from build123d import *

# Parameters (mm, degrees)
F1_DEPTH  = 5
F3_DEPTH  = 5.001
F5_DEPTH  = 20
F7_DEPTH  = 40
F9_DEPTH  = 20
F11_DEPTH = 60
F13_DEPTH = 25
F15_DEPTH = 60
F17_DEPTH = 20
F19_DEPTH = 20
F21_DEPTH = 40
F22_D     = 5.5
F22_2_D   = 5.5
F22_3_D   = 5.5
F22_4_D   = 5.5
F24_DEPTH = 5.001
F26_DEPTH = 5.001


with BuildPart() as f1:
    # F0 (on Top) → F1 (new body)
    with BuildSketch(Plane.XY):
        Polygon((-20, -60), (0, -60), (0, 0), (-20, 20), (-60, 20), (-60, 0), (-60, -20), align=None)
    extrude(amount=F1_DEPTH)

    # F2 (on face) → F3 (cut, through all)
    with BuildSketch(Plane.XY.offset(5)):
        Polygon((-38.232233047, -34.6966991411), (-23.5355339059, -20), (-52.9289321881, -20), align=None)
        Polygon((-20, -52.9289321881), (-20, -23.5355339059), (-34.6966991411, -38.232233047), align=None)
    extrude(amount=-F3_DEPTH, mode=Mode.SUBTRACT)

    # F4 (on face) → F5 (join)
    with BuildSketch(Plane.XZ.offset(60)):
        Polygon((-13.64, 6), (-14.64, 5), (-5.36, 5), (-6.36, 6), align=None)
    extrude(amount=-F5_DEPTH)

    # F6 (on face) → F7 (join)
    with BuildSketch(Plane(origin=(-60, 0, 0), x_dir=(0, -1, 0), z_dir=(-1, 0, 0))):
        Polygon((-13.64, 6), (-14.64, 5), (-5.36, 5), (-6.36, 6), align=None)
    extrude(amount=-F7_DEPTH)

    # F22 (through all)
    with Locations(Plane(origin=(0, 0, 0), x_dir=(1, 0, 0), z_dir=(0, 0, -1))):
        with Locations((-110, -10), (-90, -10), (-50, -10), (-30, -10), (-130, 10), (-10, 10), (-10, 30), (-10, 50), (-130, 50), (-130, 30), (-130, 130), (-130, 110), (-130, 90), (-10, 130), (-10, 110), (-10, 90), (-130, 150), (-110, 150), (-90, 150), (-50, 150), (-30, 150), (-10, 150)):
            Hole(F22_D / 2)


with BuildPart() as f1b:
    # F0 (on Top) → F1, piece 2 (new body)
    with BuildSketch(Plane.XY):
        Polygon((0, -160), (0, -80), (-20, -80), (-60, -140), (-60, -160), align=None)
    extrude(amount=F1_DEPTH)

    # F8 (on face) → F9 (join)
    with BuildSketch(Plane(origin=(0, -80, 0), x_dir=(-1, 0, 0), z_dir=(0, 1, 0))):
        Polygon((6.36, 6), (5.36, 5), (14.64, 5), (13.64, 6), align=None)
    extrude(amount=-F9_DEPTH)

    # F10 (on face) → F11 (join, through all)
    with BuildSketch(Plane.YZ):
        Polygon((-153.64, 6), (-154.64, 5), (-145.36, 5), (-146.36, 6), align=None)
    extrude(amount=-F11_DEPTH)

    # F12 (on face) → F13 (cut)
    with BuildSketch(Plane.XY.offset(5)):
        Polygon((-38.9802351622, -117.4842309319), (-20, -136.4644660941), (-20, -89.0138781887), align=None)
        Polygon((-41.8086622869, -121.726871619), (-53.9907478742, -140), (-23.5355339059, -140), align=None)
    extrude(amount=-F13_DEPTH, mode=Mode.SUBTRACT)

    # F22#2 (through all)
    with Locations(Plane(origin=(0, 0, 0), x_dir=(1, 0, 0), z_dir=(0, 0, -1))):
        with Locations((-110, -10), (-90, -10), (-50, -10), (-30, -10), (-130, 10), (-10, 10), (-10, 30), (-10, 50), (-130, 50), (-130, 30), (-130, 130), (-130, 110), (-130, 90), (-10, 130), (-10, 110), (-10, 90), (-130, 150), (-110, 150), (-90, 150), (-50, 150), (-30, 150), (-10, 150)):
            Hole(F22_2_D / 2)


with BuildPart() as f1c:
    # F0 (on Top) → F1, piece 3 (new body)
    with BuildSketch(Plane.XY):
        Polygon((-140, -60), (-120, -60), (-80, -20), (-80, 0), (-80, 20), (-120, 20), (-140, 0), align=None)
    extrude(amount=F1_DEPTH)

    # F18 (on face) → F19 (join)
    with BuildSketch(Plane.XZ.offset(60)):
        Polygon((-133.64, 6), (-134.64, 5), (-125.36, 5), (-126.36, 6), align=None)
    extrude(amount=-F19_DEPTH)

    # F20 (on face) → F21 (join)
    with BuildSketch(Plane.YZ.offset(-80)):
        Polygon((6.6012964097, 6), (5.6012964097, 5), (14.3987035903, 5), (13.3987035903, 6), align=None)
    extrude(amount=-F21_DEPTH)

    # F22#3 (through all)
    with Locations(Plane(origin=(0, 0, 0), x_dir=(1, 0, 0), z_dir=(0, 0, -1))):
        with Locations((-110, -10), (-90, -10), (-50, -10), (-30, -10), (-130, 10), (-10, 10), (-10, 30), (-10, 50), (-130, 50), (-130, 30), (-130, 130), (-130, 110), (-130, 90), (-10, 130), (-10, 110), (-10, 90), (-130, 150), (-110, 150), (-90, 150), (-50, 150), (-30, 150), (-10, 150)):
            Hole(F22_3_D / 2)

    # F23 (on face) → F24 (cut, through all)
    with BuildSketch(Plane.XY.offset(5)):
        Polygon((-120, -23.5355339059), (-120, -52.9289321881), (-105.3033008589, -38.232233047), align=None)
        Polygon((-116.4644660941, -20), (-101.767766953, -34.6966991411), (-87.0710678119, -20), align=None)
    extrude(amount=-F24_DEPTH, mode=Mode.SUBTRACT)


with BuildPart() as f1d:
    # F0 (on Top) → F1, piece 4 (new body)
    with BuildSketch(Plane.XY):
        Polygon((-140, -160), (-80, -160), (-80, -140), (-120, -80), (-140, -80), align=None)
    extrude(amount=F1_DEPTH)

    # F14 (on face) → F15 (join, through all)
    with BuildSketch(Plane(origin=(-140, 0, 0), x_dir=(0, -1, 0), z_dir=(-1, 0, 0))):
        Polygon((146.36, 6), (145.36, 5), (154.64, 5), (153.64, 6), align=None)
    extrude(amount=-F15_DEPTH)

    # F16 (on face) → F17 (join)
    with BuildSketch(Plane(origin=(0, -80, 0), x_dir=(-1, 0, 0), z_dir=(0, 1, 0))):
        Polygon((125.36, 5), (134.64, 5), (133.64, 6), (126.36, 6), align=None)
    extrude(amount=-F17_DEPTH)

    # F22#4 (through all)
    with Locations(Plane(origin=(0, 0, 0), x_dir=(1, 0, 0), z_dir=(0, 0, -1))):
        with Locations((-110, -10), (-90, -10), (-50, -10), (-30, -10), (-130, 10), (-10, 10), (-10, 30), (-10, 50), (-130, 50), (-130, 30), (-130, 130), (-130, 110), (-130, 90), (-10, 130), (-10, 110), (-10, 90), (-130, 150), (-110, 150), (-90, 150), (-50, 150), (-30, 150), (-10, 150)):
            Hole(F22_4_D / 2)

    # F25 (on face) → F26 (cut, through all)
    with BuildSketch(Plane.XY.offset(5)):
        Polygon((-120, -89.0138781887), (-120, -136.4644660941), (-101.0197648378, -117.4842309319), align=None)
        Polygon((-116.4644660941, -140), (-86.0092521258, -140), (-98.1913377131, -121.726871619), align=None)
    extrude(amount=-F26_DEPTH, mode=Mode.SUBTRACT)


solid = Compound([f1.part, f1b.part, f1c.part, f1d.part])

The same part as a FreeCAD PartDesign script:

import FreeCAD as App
import Part
import Sketcher

V = App.Vector
Q = App.Units.Quantity


def add_polygon(sketch, points):
    """Adds a closed chain of lines whose ends are joined by coincident constraints."""
    first, n = sketch.GeometryCount, len(points)
    for a, b in zip(points, points[1:] + points[:1]):
        sketch.addGeometry(Part.LineSegment(App.Vector(*a, 0), App.Vector(*b, 0)), False)
    for i in range(n):
        sketch.addConstraint(Sketcher.Constraint("Coincident", first + i, 2, first + (i + 1) % n, 1))

doc = App.newDocument("Part")
body = doc.addObject("PartDesign::Body", "Body")

# Sketch on XY plane
sketch1 = body.newObject("Sketcher::SketchObject", "Sketch")
sketch1.AttachmentSupport = (doc.getObject("XY_Plane"), [""])
sketch1.MapMode = "FlatFace"
add_polygon(sketch1, [(-20, -60), (0, -60), (0, 0), (-20, 20), (-60, 20), (-60, -20)])  # lines 0-5
sketch1.addConstraint([
    Sketcher.Constraint("Horizontal", 0),
    Sketcher.Constraint("Vertical", 1),
    Sketcher.Constraint("Horizontal", 3),
    Sketcher.Constraint("Vertical", 4),
    Sketcher.Constraint("Coincident", 1, 2, -1, 1),
    Sketcher.Constraint("Parallel", 2, 5),
    Sketcher.Constraint("Vertical", 2, 2, 5, 2),
    Sketcher.Constraint("Equal", 3, 4),
    Sketcher.Constraint("DistanceX", 0, 1, 0, 2, Q("20 mm")),
    Sketcher.Constraint("DistanceX", 3, 2, 3, 1, Q("40 mm")),
    Sketcher.Constraint("DistanceY", 1, 1, 1, 2, Q("60 mm")),
])
pad1 = body.newObject("PartDesign::Pad", "Pad")
pad1.Profile = sketch1
pad1.Length = 5

# Sketch on XY plane
sketch2 = body.newObject("Sketcher::SketchObject", "Sketch001")
sketch2.AttachmentSupport = (doc.getObject("XY_Plane"), [""])
sketch2.MapMode = "FlatFace"
sketch2.AttachmentOffset = App.Placement(V(0, 0, 5), App.Rotation())
add_polygon(sketch2, [(-38, -35), (-24, -20), (-53, -20)])  # lines 0-2
add_polygon(sketch2, [(-20, -53), (-20, -24), (-35, -38)])  # lines 3-5
sketch2.addConstraint([
    Sketcher.Constraint("Horizontal", 1),
    Sketcher.Constraint("Vertical", 3),
    Sketcher.Constraint("Perpendicular", 0, 2),
    Sketcher.Constraint("Perpendicular", 2, 4),
    Sketcher.Constraint("Perpendicular", 4, 5),
    Sketcher.Constraint("Equal", 1, 3),
    Sketcher.Constraint("Equal", 0, 2),
    Sketcher.Constraint("DistanceY", 0, 2, -1, 1, Q("20 mm")),
    Sketcher.Constraint("DistanceX", 3, 2, -1, 1, Q("20 mm")),
    Sketcher.Constraint("DistanceX", 1, 2, 1, 1, Q("29.393398 mm")),
    Sketcher.Constraint("DistanceX", 0, 2, -1, 1, Q("23.535534 mm")),
    Sketcher.Constraint("DistanceY", 3, 2, -1, 1, Q("23.535534 mm")),
])
pocket1 = body.newObject("PartDesign::Pocket", "Pocket")
pocket1.Profile = sketch2
pocket1.Type = "ThroughAll"

# Sketch on XZ plane
sketch3 = body.newObject("Sketcher::SketchObject", "Sketch002")
sketch3.AttachmentSupport = (doc.getObject("XZ_Plane"), [""])
sketch3.MapMode = "FlatFace"
sketch3.AttachmentOffset = App.Placement(V(0, 0, 60), App.Rotation())
add_polygon(sketch3, [(-13.6, 6), (-14.6, 5), (-5.4, 5), (-6.4, 6)])  # lines 0-3
sketch3.addConstraint([
    Sketcher.Constraint("Horizontal", 1),
    Sketcher.Constraint("Horizontal", 3),
    Sketcher.Constraint("Perpendicular", 0, 2),
    Sketcher.Constraint("Equal", 0, 2),
    Sketcher.Constraint("DistanceY", -1, 1, 0, 2, Q("5 mm")),
    Sketcher.Constraint("DistanceY", -1, 1, 2, 2, Q("6 mm")),
    Sketcher.Constraint("DistanceX", 1, 1, 1, 2, Q("9.28 mm")),
    Sketcher.Constraint("DistanceX", 0, 2, -1, 1, Q("14.64 mm")),
])
pad2 = body.newObject("PartDesign::Pad", "Pad001")
pad2.Profile = sketch3
pad2.Length = 20
pad2.Reversed = True

# Sketch on YZ plane
sketch4 = body.newObject("Sketcher::SketchObject", "Sketch003")
sketch4.AttachmentSupport = (doc.getObject("YZ_Plane"), [""])
sketch4.MapMode = "FlatFace"
sketch4.AttachmentOffset = App.Placement(V(0, 0, -60), App.Rotation())
add_polygon(sketch4, [(13.6, 6), (14.6, 5), (5.4, 5), (6.4, 6)])  # lines 0-3
sketch4.addConstraint([
    Sketcher.Constraint("Horizontal", 1),
    Sketcher.Constraint("Horizontal", 3),
    Sketcher.Constraint("Perpendicular", 0, 2),
    Sketcher.Constraint("Equal", 0, 2),
    Sketcher.Constraint("DistanceY", -1, 1, 0, 2, Q("5 mm")),
    Sketcher.Constraint("DistanceY", -1, 1, 2, 2, Q("6 mm")),
    Sketcher.Constraint("DistanceX", 1, 2, 1, 1, Q("9.28 mm")),
    Sketcher.Constraint("DistanceX", -1, 1, 0, 2, Q("14.64 mm")),
])
pad3 = body.newObject("PartDesign::Pad", "Pad002")
pad3.Profile = sketch4
pad3.Length = 40

# Sketch on XY plane
sketch5 = body.newObject("Sketcher::SketchObject", "Sketch004")
sketch5.AttachmentSupport = (doc.getObject("XY_Plane"), [""])
sketch5.MapMode = "FlatFace"
sketch5.addGeometry([
    Part.Circle(V(-110, 10, 0), V(0, 0, 1), 2.8),  # 0
    Part.Circle(V(-90, 10, 0), V(0, 0, 1), 2.8),  # 1
    Part.Circle(V(-50, 10, 0), V(0, 0, 1), 2.8),  # 2
    Part.Circle(V(-30, 10, 0), V(0, 0, 1), 2.8),  # 3
    Part.Circle(V(-130, -10, 0), V(0, 0, 1), 2.8),  # 4
    Part.Circle(V(-10, -10, 0), V(0, 0, 1), 2.8),  # 5
    Part.Circle(V(-10, -30, 0), V(0, 0, 1), 2.8),  # 6
    Part.Circle(V(-10, -50, 0), V(0, 0, 1), 2.8),  # 7
    Part.Circle(V(-130, -50, 0), V(0, 0, 1), 2.8),  # 8
    Part.Circle(V(-130, -30, 0), V(0, 0, 1), 2.8),  # 9
    Part.Circle(V(-130, -130, 0), V(0, 0, 1), 2.8),  # 10
    Part.Circle(V(-130, -110, 0), V(0, 0, 1), 2.8),  # 11
    Part.Circle(V(-130, -90, 0), V(0, 0, 1), 2.8),  # 12
    Part.Circle(V(-10, -130, 0), V(0, 0, 1), 2.8),  # 13
    Part.Circle(V(-10, -110, 0), V(0, 0, 1), 2.8),  # 14
    Part.Circle(V(-10, -90, 0), V(0, 0, 1), 2.8),  # 15
    Part.Circle(V(-130, -150, 0), V(0, 0, 1), 2.8),  # 16
    Part.Circle(V(-110, -150, 0), V(0, 0, 1), 2.8),  # 17
    Part.Circle(V(-90, -150, 0), V(0, 0, 1), 2.8),  # 18
    Part.Circle(V(-50, -150, 0), V(0, 0, 1), 2.8),  # 19
    Part.Circle(V(-30, -150, 0), V(0, 0, 1), 2.8),  # 20
    Part.Circle(V(-10, -150, 0), V(0, 0, 1), 2.8),  # 21
], False)
sketch5.addConstraint([
    Sketcher.Constraint("Equal", 0, 1),
    Sketcher.Constraint("Equal", 1, 2),
    Sketcher.Constraint("Equal", 2, 3),
    Sketcher.Constraint("Equal", 3, 4),
    Sketcher.Constraint("Equal", 4, 5),
    Sketcher.Constraint("Equal", 5, 6),
    Sketcher.Constraint("Equal", 6, 7),
    Sketcher.Constraint("Equal", 7, 8),
    Sketcher.Constraint("Equal", 8, 9),
    Sketcher.Constraint("Equal", 9, 10),
    Sketcher.Constraint("Equal", 10, 11),
    Sketcher.Constraint("Equal", 11, 12),
    Sketcher.Constraint("Equal", 12, 13),
    Sketcher.Constraint("Equal", 13, 14),
    Sketcher.Constraint("Equal", 14, 15),
    Sketcher.Constraint("Equal", 15, 16),
    Sketcher.Constraint("Equal", 16, 17),
    Sketcher.Constraint("Equal", 17, 18),
    Sketcher.Constraint("Equal", 18, 19),
    Sketcher.Constraint("Equal", 19, 20),
    Sketcher.Constraint("Equal", 20, 21),
    Sketcher.Constraint("Horizontal", 0, 3, 1, 3),
    Sketcher.Constraint("Horizontal", 1, 3, 2, 3),
    Sketcher.Constraint("Horizontal", 2, 3, 3, 3),
    Sketcher.Constraint("Horizontal", 4, 3, 5, 3),
    Sketcher.Constraint("Horizontal", 7, 3, 8, 3),
    Sketcher.Constraint("Horizontal", 6, 3, 9, 3),
    Sketcher.Constraint("Horizontal", 10, 3, 13, 3),
    Sketcher.Constraint("Horizontal", 11, 3, 14, 3),
    Sketcher.Constraint("Horizontal", 12, 3, 15, 3),
    Sketcher.Constraint("Horizontal", 16, 3, 17, 3),
    Sketcher.Constraint("Horizontal", 17, 3, 18, 3),
    Sketcher.Constraint("Horizontal", 18, 3, 19, 3),
    Sketcher.Constraint("Horizontal", 19, 3, 20, 3),
    Sketcher.Constraint("Horizontal", 20, 3, 21, 3),
    Sketcher.Constraint("Vertical", 5, 3, 6, 3),
    Sketcher.Constraint("Vertical", 6, 3, 7, 3),
    Sketcher.Constraint("Vertical", 4, 3, 8, 3),
    Sketcher.Constraint("Vertical", 8, 3, 9, 3),
    Sketcher.Constraint("Vertical", 9, 3, 10, 3),
    Sketcher.Constraint("Vertical", 10, 3, 11, 3),
    Sketcher.Constraint("Vertical", 11, 3, 12, 3),
    Sketcher.Constraint("Vertical", 7, 3, 13, 3),
    Sketcher.Constraint("Vertical", 13, 3, 14, 3),
    Sketcher.Constraint("Vertical", 14, 3, 15, 3),
    Sketcher.Constraint("Vertical", 12, 3, 16, 3),
    Sketcher.Constraint("Vertical", 0, 3, 17, 3),
    Sketcher.Constraint("Vertical", 1, 3, 18, 3),
    Sketcher.Constraint("Vertical", 2, 3, 19, 3),
    Sketcher.Constraint("Vertical", 3, 3, 20, 3),
    Sketcher.Constraint("Vertical", 15, 3, 21, 3),
    Sketcher.Constraint("Diameter", 0, Q("5.5 mm")),
    Sketcher.Constraint("DistanceX", 0, 3, -1, 1, Q("110 mm")),
    Sketcher.Constraint("DistanceY", -1, 1, 0, 3, Q("10 mm")),
    Sketcher.Constraint("DistanceX", 1, 3, -1, 1, Q("90 mm")),
    Sketcher.Constraint("DistanceX", 2, 3, -1, 1, Q("50 mm")),
    Sketcher.Constraint("DistanceX", 3, 3, -1, 1, Q("30 mm")),
    Sketcher.Constraint("DistanceX", 4, 3, -1, 1, Q("130 mm")),
    Sketcher.Constraint("DistanceY", 4, 3, -1, 1, Q("10 mm")),
    Sketcher.Constraint("DistanceX", 5, 3, -1, 1, Q("10 mm")),
    Sketcher.Constraint("DistanceY", 6, 3, -1, 1, Q("30 mm")),
    Sketcher.Constraint("DistanceY", 7, 3, -1, 1, Q("50 mm")),
    Sketcher.Constraint("DistanceY", 10, 3, -1, 1, Q("130 mm")),
    Sketcher.Constraint("DistanceY", 11, 3, -1, 1, Q("110 mm")),
    Sketcher.Constraint("DistanceY", 12, 3, -1, 1, Q("90 mm")),
    Sketcher.Constraint("DistanceY", 16, 3, -1, 1, Q("150 mm")),
])
doc.recompute()
hole = body.newObject("PartDesign::Hole", "Hole")
hole.Profile = sketch5
hole.ThreadType = "None"
hole.Diameter = 5.5
hole.DepthType = "ThroughAll"
hole.Reversed = True
body2 = doc.addObject("PartDesign::Body", "Body001")

# Sketch on XY plane
sketch6 = body2.newObject("Sketcher::SketchObject", "Sketch005")
sketch6.AttachmentSupport = (doc.getObject("XY_Plane001"), [""])
sketch6.MapMode = "FlatFace"
add_polygon(sketch6, [(0, -160), (0, -80), (-20, -80), (-60, -140), (-60, -160)])  # lines 0-4
sketch6.addConstraint([
    Sketcher.Constraint("Vertical", 0),
    Sketcher.Constraint("Horizontal", 1),
    Sketcher.Constraint("Vertical", 3),
    Sketcher.Constraint("Horizontal", 4),
    Sketcher.Constraint("PointOnObject", 0, 2, -2),
    Sketcher.Constraint("Equal", 1, 3),
    Sketcher.Constraint("DistanceX", 1, 2, 1, 1, Q("20 mm")),
    Sketcher.Constraint("DistanceX", 4, 1, 4, 2, Q("60 mm")),
    Sketcher.Constraint("DistanceY", 0, 1, 0, 2, Q("80 mm")),
    Sketcher.Constraint("DistanceY", 0, 2, -1, 1, Q("80 mm")),
])
pad4 = body2.newObject("PartDesign::Pad", "Pad003")
pad4.Profile = sketch6
pad4.Length = 5

# Sketch on XZ plane
sketch7 = body2.newObject("Sketcher::SketchObject", "Sketch006")
sketch7.AttachmentSupport = (doc.getObject("XZ_Plane001"), [""])
sketch7.MapMode = "FlatFace"
sketch7.AttachmentOffset = App.Placement(V(0, 0, 80), App.Rotation())
add_polygon(sketch7, [(-6.4, 6), (-5.4, 5), (-14.6, 5), (-13.6, 6)])  # lines 0-3
sketch7.addConstraint([
    Sketcher.Constraint("Horizontal", 1),
    Sketcher.Constraint("Horizontal", 3),
    Sketcher.Constraint("Perpendicular", 0, 2),
    Sketcher.Constraint("Equal", 0, 2),
    Sketcher.Constraint("DistanceY", -1, 1, 0, 2, Q("5 mm")),
    Sketcher.Constraint("DistanceY", -1, 1, 2, 2, Q("6 mm")),
    Sketcher.Constraint("DistanceX", 1, 2, 1, 1, Q("9.28 mm")),
    Sketcher.Constraint("DistanceX", 0, 2, -1, 1, Q("5.36 mm")),
])
pad5 = body2.newObject("PartDesign::Pad", "Pad004")
pad5.Profile = sketch7
pad5.Length = 20

# Sketch on YZ plane
sketch8 = body2.newObject("Sketcher::SketchObject", "Sketch007")
sketch8.AttachmentSupport = (doc.getObject("YZ_Plane001"), [""])
sketch8.MapMode = "FlatFace"
add_polygon(sketch8, [(-153.6, 6), (-154.6, 5), (-145.4, 5), (-146.4, 6)])  # lines 0-3
sketch8.addConstraint([
    Sketcher.Constraint("Horizontal", 1),
    Sketcher.Constraint("Horizontal", 3),
    Sketcher.Constraint("Perpendicular", 0, 2),
    Sketcher.Constraint("Equal", 0, 2),
    Sketcher.Constraint("DistanceY", -1, 1, 0, 2, Q("5 mm")),
    Sketcher.Constraint("DistanceY", -1, 1, 2, 2, Q("6 mm")),
    Sketcher.Constraint("DistanceX", 1, 1, 1, 2, Q("9.28 mm")),
    Sketcher.Constraint("DistanceX", 0, 2, -1, 1, Q("154.64 mm")),
])
pad6 = body2.newObject("PartDesign::Pad", "Pad005")
pad6.Profile = sketch8
pad6.Length = 60
pad6.Reversed = True

# Sketch on XY plane
sketch9 = body2.newObject("Sketcher::SketchObject", "Sketch008")
sketch9.AttachmentSupport = (doc.getObject("XY_Plane001"), [""])
sketch9.MapMode = "FlatFace"
sketch9.AttachmentOffset = App.Placement(V(0, 0, 5), App.Rotation())
add_polygon(sketch9, [(-39, -117), (-20, -136), (-20, -89)])  # lines 0-2
add_polygon(sketch9, [(-42, -122), (-54, -140), (-24, -140)])  # lines 3-5
sketch9.addConstraint([
    Sketcher.Constraint("Vertical", 1),
    Sketcher.Constraint("Horizontal", 4),
    Sketcher.Constraint("Parallel", 2, 3),
    Sketcher.Constraint("Parallel", 0, 5),
    Sketcher.Constraint("Angle", 0, Q("-45 deg")),
    Sketcher.Constraint("DistanceX", 0, 2, -1, 1, Q("20 mm")),
    Sketcher.Constraint("DistanceY", 3, 2, -1, 1, Q("140 mm")),
    Sketcher.Constraint("DistanceX", 2, 2, 4, 2, Q("15.444701 mm")),
    Sketcher.Constraint("DistanceX", 4, 1, 4, 2, Q("30.455214 mm")),
    Sketcher.Constraint("DistanceY", 1, 1, 1, 2, Q("47.450588 mm")),
    Sketcher.Constraint("DistanceY", 1, 2, -1, 1, Q("89.013878 mm")),
    Sketcher.Constraint("DistanceY", 2, 2, -1, 1, Q("117.484231 mm")),
])
pocket2 = body2.newObject("PartDesign::Pocket", "Pocket001")
pocket2.Profile = sketch9
pocket2.Length = 25

# Sketch on XY plane
sketch10 = body2.newObject("Sketcher::SketchObject", "Sketch009")
sketch10.AttachmentSupport = (doc.getObject("XY_Plane001"), [""])
sketch10.MapMode = "FlatFace"
sketch10.addGeometry([
    Part.Circle(V(-110, 10, 0), V(0, 0, 1), 2.8),  # 0
    Part.Circle(V(-90, 10, 0), V(0, 0, 1), 2.8),  # 1
    Part.Circle(V(-50, 10, 0), V(0, 0, 1), 2.8),  # 2
    Part.Circle(V(-30, 10, 0), V(0, 0, 1), 2.8),  # 3
    Part.Circle(V(-130, -10, 0), V(0, 0, 1), 2.8),  # 4
    Part.Circle(V(-10, -10, 0), V(0, 0, 1), 2.8),  # 5
    Part.Circle(V(-10, -30, 0), V(0, 0, 1), 2.8),  # 6
    Part.Circle(V(-10, -50, 0), V(0, 0, 1), 2.8),  # 7
    Part.Circle(V(-130, -50, 0), V(0, 0, 1), 2.8),  # 8
    Part.Circle(V(-130, -30, 0), V(0, 0, 1), 2.8),  # 9
    Part.Circle(V(-130, -130, 0), V(0, 0, 1), 2.8),  # 10
    Part.Circle(V(-130, -110, 0), V(0, 0, 1), 2.8),  # 11
    Part.Circle(V(-130, -90, 0), V(0, 0, 1), 2.8),  # 12
    Part.Circle(V(-10, -130, 0), V(0, 0, 1), 2.8),  # 13
    Part.Circle(V(-10, -110, 0), V(0, 0, 1), 2.8),  # 14
    Part.Circle(V(-10, -90, 0), V(0, 0, 1), 2.8),  # 15
    Part.Circle(V(-130, -150, 0), V(0, 0, 1), 2.8),  # 16
    Part.Circle(V(-110, -150, 0), V(0, 0, 1), 2.8),  # 17
    Part.Circle(V(-90, -150, 0), V(0, 0, 1), 2.8),  # 18
    Part.Circle(V(-50, -150, 0), V(0, 0, 1), 2.8),  # 19
    Part.Circle(V(-30, -150, 0), V(0, 0, 1), 2.8),  # 20
    Part.Circle(V(-10, -150, 0), V(0, 0, 1), 2.8),  # 21
], False)
sketch10.addConstraint([
    Sketcher.Constraint("Equal", 0, 1),
    Sketcher.Constraint("Equal", 1, 2),
    Sketcher.Constraint("Equal", 2, 3),
    Sketcher.Constraint("Equal", 3, 4),
    Sketcher.Constraint("Equal", 4, 5),
    Sketcher.Constraint("Equal", 5, 6),
    Sketcher.Constraint("Equal", 6, 7),
    Sketcher.Constraint("Equal", 7, 8),
    Sketcher.Constraint("Equal", 8, 9),
    Sketcher.Constraint("Equal", 9, 10),
    Sketcher.Constraint("Equal", 10, 11),
    Sketcher.Constraint("Equal", 11, 12),
    Sketcher.Constraint("Equal", 12, 13),
    Sketcher.Constraint("Equal", 13, 14),
    Sketcher.Constraint("Equal", 14, 15),
    Sketcher.Constraint("Equal", 15, 16),
    Sketcher.Constraint("Equal", 16, 17),
    Sketcher.Constraint("Equal", 17, 18),
    Sketcher.Constraint("Equal", 18, 19),
    Sketcher.Constraint("Equal", 19, 20),
    Sketcher.Constraint("Equal", 20, 21),
    Sketcher.Constraint("Horizontal", 0, 3, 1, 3),
    Sketcher.Constraint("Horizontal", 1, 3, 2, 3),
    Sketcher.Constraint("Horizontal", 2, 3, 3, 3),
    Sketcher.Constraint("Horizontal", 4, 3, 5, 3),
    Sketcher.Constraint("Horizontal", 7, 3, 8, 3),
    Sketcher.Constraint("Horizontal", 6, 3, 9, 3),
    Sketcher.Constraint("Horizontal", 10, 3, 13, 3),
    Sketcher.Constraint("Horizontal", 11, 3, 14, 3),
    Sketcher.Constraint("Horizontal", 12, 3, 15, 3),
    Sketcher.Constraint("Horizontal", 16, 3, 17, 3),
    Sketcher.Constraint("Horizontal", 17, 3, 18, 3),
    Sketcher.Constraint("Horizontal", 18, 3, 19, 3),
    Sketcher.Constraint("Horizontal", 19, 3, 20, 3),
    Sketcher.Constraint("Horizontal", 20, 3, 21, 3),
    Sketcher.Constraint("Vertical", 5, 3, 6, 3),
    Sketcher.Constraint("Vertical", 6, 3, 7, 3),
    Sketcher.Constraint("Vertical", 4, 3, 8, 3),
    Sketcher.Constraint("Vertical", 8, 3, 9, 3),
    Sketcher.Constraint("Vertical", 9, 3, 10, 3),
    Sketcher.Constraint("Vertical", 10, 3, 11, 3),
    Sketcher.Constraint("Vertical", 11, 3, 12, 3),
    Sketcher.Constraint("Vertical", 7, 3, 13, 3),
    Sketcher.Constraint("Vertical", 13, 3, 14, 3),
    Sketcher.Constraint("Vertical", 14, 3, 15, 3),
    Sketcher.Constraint("Vertical", 12, 3, 16, 3),
    Sketcher.Constraint("Vertical", 0, 3, 17, 3),
    Sketcher.Constraint("Vertical", 1, 3, 18, 3),
    Sketcher.Constraint("Vertical", 2, 3, 19, 3),
    Sketcher.Constraint("Vertical", 3, 3, 20, 3),
    Sketcher.Constraint("Vertical", 15, 3, 21, 3),
    Sketcher.Constraint("Diameter", 0, Q("5.5 mm")),
    Sketcher.Constraint("DistanceX", 0, 3, -1, 1, Q("110 mm")),
    Sketcher.Constraint("DistanceY", -1, 1, 0, 3, Q("10 mm")),
    Sketcher.Constraint("DistanceX", 1, 3, -1, 1, Q("90 mm")),
    Sketcher.Constraint("DistanceX", 2, 3, -1, 1, Q("50 mm")),
    Sketcher.Constraint("DistanceX", 3, 3, -1, 1, Q("30 mm")),
    Sketcher.Constraint("DistanceX", 4, 3, -1, 1, Q("130 mm")),
    Sketcher.Constraint("DistanceY", 4, 3, -1, 1, Q("10 mm")),
    Sketcher.Constraint("DistanceX", 5, 3, -1, 1, Q("10 mm")),
    Sketcher.Constraint("DistanceY", 6, 3, -1, 1, Q("30 mm")),
    Sketcher.Constraint("DistanceY", 7, 3, -1, 1, Q("50 mm")),
    Sketcher.Constraint("DistanceY", 10, 3, -1, 1, Q("130 mm")),
    Sketcher.Constraint("DistanceY", 11, 3, -1, 1, Q("110 mm")),
    Sketcher.Constraint("DistanceY", 12, 3, -1, 1, Q("90 mm")),
    Sketcher.Constraint("DistanceY", 16, 3, -1, 1, Q("150 mm")),
])
doc.recompute()
hole2 = body2.newObject("PartDesign::Hole", "Hole001")
hole2.Profile = sketch10
hole2.ThreadType = "None"
hole2.Diameter = 5.5
hole2.DepthType = "ThroughAll"
hole2.Reversed = True
body3 = doc.addObject("PartDesign::Body", "Body002")

# Sketch on XY plane
sketch11 = body3.newObject("Sketcher::SketchObject", "Sketch010")
sketch11.AttachmentSupport = (doc.getObject("XY_Plane002"), [""])
sketch11.MapMode = "FlatFace"
add_polygon(sketch11, [(-140, -60), (-120, -60), (-80, -20), (-80, 20), (-120, 20), (-140, 0)])  # lines 0-5
sketch11.addConstraint([
    Sketcher.Constraint("Horizontal", 0),
    Sketcher.Constraint("Vertical", 2),
    Sketcher.Constraint("Horizontal", 3),
    Sketcher.Constraint("Vertical", 5),
    Sketcher.Constraint("PointOnObject", 4, 2, -1),
    Sketcher.Constraint("Parallel", 1, 4),
    Sketcher.Constraint("Vertical", 0, 2, 3, 2),
    Sketcher.Constraint("Equal", 3, 2),
    Sketcher.Constraint("DistanceX", 0, 1, 0, 2, Q("20 mm")),
    Sketcher.Constraint("DistanceX", 3, 2, 3, 1, Q("40 mm")),
    Sketcher.Constraint("DistanceY", 5, 2, 5, 1, Q("60 mm")),
    Sketcher.Constraint("DistanceX", 0, 2, -1, 1, Q("120 mm")),
])
pad7 = body3.newObject("PartDesign::Pad", "Pad006")
pad7.Profile = sketch11
pad7.Length = 5

# Sketch on XZ plane
sketch12 = body3.newObject("Sketcher::SketchObject", "Sketch011")
sketch12.AttachmentSupport = (doc.getObject("XZ_Plane002"), [""])
sketch12.MapMode = "FlatFace"
sketch12.AttachmentOffset = App.Placement(V(0, 0, 60), App.Rotation())
add_polygon(sketch12, [(-133.6, 6), (-134.6, 5), (-125.4, 5), (-126.4, 6)])  # lines 0-3
sketch12.addConstraint([
    Sketcher.Constraint("Horizontal", 1),
    Sketcher.Constraint("Horizontal", 3),
    Sketcher.Constraint("Perpendicular", 0, 2),
    Sketcher.Constraint("Equal", 0, 2),
    Sketcher.Constraint("DistanceY", -1, 1, 0, 2, Q("5 mm")),
    Sketcher.Constraint("DistanceY", -1, 1, 2, 2, Q("6 mm")),
    Sketcher.Constraint("DistanceX", 1, 1, 1, 2, Q("9.28 mm")),
    Sketcher.Constraint("DistanceX", 0, 2, -1, 1, Q("134.64 mm")),
])
pad8 = body3.newObject("PartDesign::Pad", "Pad007")
pad8.Profile = sketch12
pad8.Length = 20
pad8.Reversed = True

# Sketch on YZ plane
sketch13 = body3.newObject("Sketcher::SketchObject", "Sketch012")
sketch13.AttachmentSupport = (doc.getObject("YZ_Plane002"), [""])
sketch13.MapMode = "FlatFace"
sketch13.AttachmentOffset = App.Placement(V(0, 0, -80), App.Rotation())
add_polygon(sketch13, [(6.6, 6), (5.6, 5), (14.4, 5), (13.4, 6)])  # lines 0-3
sketch13.addConstraint([
    Sketcher.Constraint("Horizontal", 1),
    Sketcher.Constraint("Horizontal", 3),
    Sketcher.Constraint("Perpendicular", 0, 2),
    Sketcher.Constraint("Equal", 0, 2),
    Sketcher.Constraint("DistanceY", -1, 1, 0, 2, Q("5 mm")),
    Sketcher.Constraint("DistanceY", -1, 1, 2, 2, Q("6 mm")),
    Sketcher.Constraint("DistanceX", 1, 1, 1, 2, Q("8.797407 mm")),
    Sketcher.Constraint("DistanceX", -1, 1, 0, 2, Q("5.601296 mm")),
])
pad9 = body3.newObject("PartDesign::Pad", "Pad008")
pad9.Profile = sketch13
pad9.Length = 40
pad9.Reversed = True

# Sketch on XY plane
sketch14 = body3.newObject("Sketcher::SketchObject", "Sketch013")
sketch14.AttachmentSupport = (doc.getObject("XY_Plane002"), [""])
sketch14.MapMode = "FlatFace"
sketch14.addGeometry([
    Part.Circle(V(-110, 10, 0), V(0, 0, 1), 2.8),  # 0
    Part.Circle(V(-90, 10, 0), V(0, 0, 1), 2.8),  # 1
    Part.Circle(V(-50, 10, 0), V(0, 0, 1), 2.8),  # 2
    Part.Circle(V(-30, 10, 0), V(0, 0, 1), 2.8),  # 3
    Part.Circle(V(-130, -10, 0), V(0, 0, 1), 2.8),  # 4
    Part.Circle(V(-10, -10, 0), V(0, 0, 1), 2.8),  # 5
    Part.Circle(V(-10, -30, 0), V(0, 0, 1), 2.8),  # 6
    Part.Circle(V(-10, -50, 0), V(0, 0, 1), 2.8),  # 7
    Part.Circle(V(-130, -50, 0), V(0, 0, 1), 2.8),  # 8
    Part.Circle(V(-130, -30, 0), V(0, 0, 1), 2.8),  # 9
    Part.Circle(V(-130, -130, 0), V(0, 0, 1), 2.8),  # 10
    Part.Circle(V(-130, -110, 0), V(0, 0, 1), 2.8),  # 11
    Part.Circle(V(-130, -90, 0), V(0, 0, 1), 2.8),  # 12
    Part.Circle(V(-10, -130, 0), V(0, 0, 1), 2.8),  # 13
    Part.Circle(V(-10, -110, 0), V(0, 0, 1), 2.8),  # 14
    Part.Circle(V(-10, -90, 0), V(0, 0, 1), 2.8),  # 15
    Part.Circle(V(-130, -150, 0), V(0, 0, 1), 2.8),  # 16
    Part.Circle(V(-110, -150, 0), V(0, 0, 1), 2.8),  # 17
    Part.Circle(V(-90, -150, 0), V(0, 0, 1), 2.8),  # 18
    Part.Circle(V(-50, -150, 0), V(0, 0, 1), 2.8),  # 19
    Part.Circle(V(-30, -150, 0), V(0, 0, 1), 2.8),  # 20
    Part.Circle(V(-10, -150, 0), V(0, 0, 1), 2.8),  # 21
], False)
sketch14.addConstraint([
    Sketcher.Constraint("Equal", 0, 1),
    Sketcher.Constraint("Equal", 1, 2),
    Sketcher.Constraint("Equal", 2, 3),
    Sketcher.Constraint("Equal", 3, 4),
    Sketcher.Constraint("Equal", 4, 5),
    Sketcher.Constraint("Equal", 5, 6),
    Sketcher.Constraint("Equal", 6, 7),
    Sketcher.Constraint("Equal", 7, 8),
    Sketcher.Constraint("Equal", 8, 9),
    Sketcher.Constraint("Equal", 9, 10),
    Sketcher.Constraint("Equal", 10, 11),
    Sketcher.Constraint("Equal", 11, 12),
    Sketcher.Constraint("Equal", 12, 13),
    Sketcher.Constraint("Equal", 13, 14),
    Sketcher.Constraint("Equal", 14, 15),
    Sketcher.Constraint("Equal", 15, 16),
    Sketcher.Constraint("Equal", 16, 17),
    Sketcher.Constraint("Equal", 17, 18),
    Sketcher.Constraint("Equal", 18, 19),
    Sketcher.Constraint("Equal", 19, 20),
    Sketcher.Constraint("Equal", 20, 21),
    Sketcher.Constraint("Horizontal", 0, 3, 1, 3),
    Sketcher.Constraint("Horizontal", 1, 3, 2, 3),
    Sketcher.Constraint("Horizontal", 2, 3, 3, 3),
    Sketcher.Constraint("Horizontal", 4, 3, 5, 3),
    Sketcher.Constraint("Horizontal", 7, 3, 8, 3),
    Sketcher.Constraint("Horizontal", 6, 3, 9, 3),
    Sketcher.Constraint("Horizontal", 10, 3, 13, 3),
    Sketcher.Constraint("Horizontal", 11, 3, 14, 3),
    Sketcher.Constraint("Horizontal", 12, 3, 15, 3),
    Sketcher.Constraint("Horizontal", 16, 3, 17, 3),
    Sketcher.Constraint("Horizontal", 17, 3, 18, 3),
    Sketcher.Constraint("Horizontal", 18, 3, 19, 3),
    Sketcher.Constraint("Horizontal", 19, 3, 20, 3),
    Sketcher.Constraint("Horizontal", 20, 3, 21, 3),
    Sketcher.Constraint("Vertical", 5, 3, 6, 3),
    Sketcher.Constraint("Vertical", 6, 3, 7, 3),
    Sketcher.Constraint("Vertical", 4, 3, 8, 3),
    Sketcher.Constraint("Vertical", 8, 3, 9, 3),
    Sketcher.Constraint("Vertical", 9, 3, 10, 3),
    Sketcher.Constraint("Vertical", 10, 3, 11, 3),
    Sketcher.Constraint("Vertical", 11, 3, 12, 3),
    Sketcher.Constraint("Vertical", 7, 3, 13, 3),
    Sketcher.Constraint("Vertical", 13, 3, 14, 3),
    Sketcher.Constraint("Vertical", 14, 3, 15, 3),
    Sketcher.Constraint("Vertical", 12, 3, 16, 3),
    Sketcher.Constraint("Vertical", 0, 3, 17, 3),
    Sketcher.Constraint("Vertical", 1, 3, 18, 3),
    Sketcher.Constraint("Vertical", 2, 3, 19, 3),
    Sketcher.Constraint("Vertical", 3, 3, 20, 3),
    Sketcher.Constraint("Vertical", 15, 3, 21, 3),
    Sketcher.Constraint("Diameter", 0, Q("5.5 mm")),
    Sketcher.Constraint("DistanceX", 0, 3, -1, 1, Q("110 mm")),
    Sketcher.Constraint("DistanceY", -1, 1, 0, 3, Q("10 mm")),
    Sketcher.Constraint("DistanceX", 1, 3, -1, 1, Q("90 mm")),
    Sketcher.Constraint("DistanceX", 2, 3, -1, 1, Q("50 mm")),
    Sketcher.Constraint("DistanceX", 3, 3, -1, 1, Q("30 mm")),
    Sketcher.Constraint("DistanceX", 4, 3, -1, 1, Q("130 mm")),
    Sketcher.Constraint("DistanceY", 4, 3, -1, 1, Q("10 mm")),
    Sketcher.Constraint("DistanceX", 5, 3, -1, 1, Q("10 mm")),
    Sketcher.Constraint("DistanceY", 6, 3, -1, 1, Q("30 mm")),
    Sketcher.Constraint("DistanceY", 7, 3, -1, 1, Q("50 mm")),
    Sketcher.Constraint("DistanceY", 10, 3, -1, 1, Q("130 mm")),
    Sketcher.Constraint("DistanceY", 11, 3, -1, 1, Q("110 mm")),
    Sketcher.Constraint("DistanceY", 12, 3, -1, 1, Q("90 mm")),
    Sketcher.Constraint("DistanceY", 16, 3, -1, 1, Q("150 mm")),
])
doc.recompute()
hole3 = body3.newObject("PartDesign::Hole", "Hole002")
hole3.Profile = sketch14
hole3.ThreadType = "None"
hole3.Diameter = 5.5
hole3.DepthType = "ThroughAll"
hole3.Reversed = True

# Sketch on XY plane
sketch15 = body3.newObject("Sketcher::SketchObject", "Sketch014")
sketch15.AttachmentSupport = (doc.getObject("XY_Plane002"), [""])
sketch15.MapMode = "FlatFace"
sketch15.AttachmentOffset = App.Placement(V(0, 0, 5), App.Rotation())
add_polygon(sketch15, [(-120, -24), (-120, -53), (-105, -38)])  # lines 0-2
add_polygon(sketch15, [(-116, -20), (-102, -35), (-87, -20)])  # lines 3-5
sketch15.addConstraint([
    Sketcher.Constraint("Vertical", 0),
    Sketcher.Constraint("Horizontal", 5),
    Sketcher.Constraint("Perpendicular", 1, 2),
    Sketcher.Constraint("Parallel", 2, 3),
    Sketcher.Constraint("Perpendicular", 3, 4),
    Sketcher.Constraint("Equal", 5, 0),
    Sketcher.Constraint("Equal", 1, 2),
    Sketcher.Constraint("DistanceX", 0, 2, -1, 1, Q("120 mm")),
    Sketcher.Constraint("DistanceY", 4, 2, -1, 1, Q("20 mm")),
    Sketcher.Constraint("DistanceX", 5, 2, 5, 1, Q("29.393398 mm")),
    Sketcher.Constraint("DistanceY", 0, 2, -1, 1, Q("52.928932 mm")),
    Sketcher.Constraint("DistanceX", 3, 2, -1, 1, Q("101.767767 mm")),
])
pocket3 = body3.newObject("PartDesign::Pocket", "Pocket002")
pocket3.Profile = sketch15
pocket3.Type = "ThroughAll"
body4 = doc.addObject("PartDesign::Body", "Body003")

# Sketch on XY plane
sketch16 = body4.newObject("Sketcher::SketchObject", "Sketch015")
sketch16.AttachmentSupport = (doc.getObject("XY_Plane003"), [""])
sketch16.MapMode = "FlatFace"
add_polygon(sketch16, [(-140, -160), (-80, -160), (-80, -140), (-120, -80), (-140, -80)])  # lines 0-4
sketch16.addConstraint([
    Sketcher.Constraint("Horizontal", 0),
    Sketcher.Constraint("Vertical", 1),
    Sketcher.Constraint("Horizontal", 3),
    Sketcher.Constraint("Vertical", 4),
    Sketcher.Constraint("Equal", 3, 1),
    Sketcher.Constraint("DistanceX", 0, 1, 0, 2, Q("60 mm")),
    Sketcher.Constraint("DistanceX", 3, 2, 3, 1, Q("20 mm")),
    Sketcher.Constraint("DistanceY", 4, 2, 4, 1, Q("80 mm")),
    Sketcher.Constraint("DistanceX", 0, 2, -1, 1, Q("80 mm")),
    Sketcher.Constraint("DistanceY", 0, 2, -1, 1, Q("160 mm")),
])
pad10 = body4.newObject("PartDesign::Pad", "Pad009")
pad10.Profile = sketch16
pad10.Length = 5

# Sketch on YZ plane
sketch17 = body4.newObject("Sketcher::SketchObject", "Sketch016")
sketch17.AttachmentSupport = (doc.getObject("YZ_Plane003"), [""])
sketch17.MapMode = "FlatFace"
sketch17.AttachmentOffset = App.Placement(V(0, 0, -140), App.Rotation())
add_polygon(sketch17, [(-146.4, 6), (-145.4, 5), (-154.6, 5), (-153.6, 6)])  # lines 0-3
sketch17.addConstraint([
    Sketcher.Constraint("Horizontal", 1),
    Sketcher.Constraint("Horizontal", 3),
    Sketcher.Constraint("Perpendicular", 0, 2),
    Sketcher.Constraint("Equal", 0, 2),
    Sketcher.Constraint("DistanceY", -1, 1, 0, 2, Q("5 mm")),
    Sketcher.Constraint("DistanceY", -1, 1, 2, 2, Q("6 mm")),
    Sketcher.Constraint("DistanceX", 1, 2, 1, 1, Q("9.28 mm")),
    Sketcher.Constraint("DistanceX", 0, 2, -1, 1, Q("145.36 mm")),
])
pad11 = body4.newObject("PartDesign::Pad", "Pad010")
pad11.Profile = sketch17
pad11.Length = 60

# Sketch on XZ plane
sketch18 = body4.newObject("Sketcher::SketchObject", "Sketch017")
sketch18.AttachmentSupport = (doc.getObject("XZ_Plane003"), [""])
sketch18.MapMode = "FlatFace"
sketch18.AttachmentOffset = App.Placement(V(0, 0, 80), App.Rotation())
add_polygon(sketch18, [(-125.4, 5), (-134.6, 5), (-133.6, 6), (-126.4, 6)])  # lines 0-3
sketch18.addConstraint([
    Sketcher.Constraint("Horizontal", 0),
    Sketcher.Constraint("Horizontal", 2),
    Sketcher.Constraint("Perpendicular", 1, 3),
    Sketcher.Constraint("Equal", 1, 3),
    Sketcher.Constraint("DistanceY", -1, 1, 0, 2, Q("5 mm")),
    Sketcher.Constraint("DistanceY", -1, 1, 1, 2, Q("6 mm")),
    Sketcher.Constraint("DistanceX", 0, 2, 0, 1, Q("9.28 mm")),
    Sketcher.Constraint("DistanceX", 0, 2, -1, 1, Q("134.64 mm")),
])
pad12 = body4.newObject("PartDesign::Pad", "Pad011")
pad12.Profile = sketch18
pad12.Length = 20

# Sketch on XY plane
sketch19 = body4.newObject("Sketcher::SketchObject", "Sketch018")
sketch19.AttachmentSupport = (doc.getObject("XY_Plane003"), [""])
sketch19.MapMode = "FlatFace"
sketch19.addGeometry([
    Part.Circle(V(-110, 10, 0), V(0, 0, 1), 2.8),  # 0
    Part.Circle(V(-90, 10, 0), V(0, 0, 1), 2.8),  # 1
    Part.Circle(V(-50, 10, 0), V(0, 0, 1), 2.8),  # 2
    Part.Circle(V(-30, 10, 0), V(0, 0, 1), 2.8),  # 3
    Part.Circle(V(-130, -10, 0), V(0, 0, 1), 2.8),  # 4
    Part.Circle(V(-10, -10, 0), V(0, 0, 1), 2.8),  # 5
    Part.Circle(V(-10, -30, 0), V(0, 0, 1), 2.8),  # 6
    Part.Circle(V(-10, -50, 0), V(0, 0, 1), 2.8),  # 7
    Part.Circle(V(-130, -50, 0), V(0, 0, 1), 2.8),  # 8
    Part.Circle(V(-130, -30, 0), V(0, 0, 1), 2.8),  # 9
    Part.Circle(V(-130, -130, 0), V(0, 0, 1), 2.8),  # 10
    Part.Circle(V(-130, -110, 0), V(0, 0, 1), 2.8),  # 11
    Part.Circle(V(-130, -90, 0), V(0, 0, 1), 2.8),  # 12
    Part.Circle(V(-10, -130, 0), V(0, 0, 1), 2.8),  # 13
    Part.Circle(V(-10, -110, 0), V(0, 0, 1), 2.8),  # 14
    Part.Circle(V(-10, -90, 0), V(0, 0, 1), 2.8),  # 15
    Part.Circle(V(-130, -150, 0), V(0, 0, 1), 2.8),  # 16
    Part.Circle(V(-110, -150, 0), V(0, 0, 1), 2.8),  # 17
    Part.Circle(V(-90, -150, 0), V(0, 0, 1), 2.8),  # 18
    Part.Circle(V(-50, -150, 0), V(0, 0, 1), 2.8),  # 19
    Part.Circle(V(-30, -150, 0), V(0, 0, 1), 2.8),  # 20
    Part.Circle(V(-10, -150, 0), V(0, 0, 1), 2.8),  # 21
], False)
sketch19.addConstraint([
    Sketcher.Constraint("Equal", 0, 1),
    Sketcher.Constraint("Equal", 1, 2),
    Sketcher.Constraint("Equal", 2, 3),
    Sketcher.Constraint("Equal", 3, 4),
    Sketcher.Constraint("Equal", 4, 5),
    Sketcher.Constraint("Equal", 5, 6),
    Sketcher.Constraint("Equal", 6, 7),
    Sketcher.Constraint("Equal", 7, 8),
    Sketcher.Constraint("Equal", 8, 9),
    Sketcher.Constraint("Equal", 9, 10),
    Sketcher.Constraint("Equal", 10, 11),
    Sketcher.Constraint("Equal", 11, 12),
    Sketcher.Constraint("Equal", 12, 13),
    Sketcher.Constraint("Equal", 13, 14),
    Sketcher.Constraint("Equal", 14, 15),
    Sketcher.Constraint("Equal", 15, 16),
    Sketcher.Constraint("Equal", 16, 17),
    Sketcher.Constraint("Equal", 17, 18),
    Sketcher.Constraint("Equal", 18, 19),
    Sketcher.Constraint("Equal", 19, 20),
    Sketcher.Constraint("Equal", 20, 21),
    Sketcher.Constraint("Horizontal", 0, 3, 1, 3),
    Sketcher.Constraint("Horizontal", 1, 3, 2, 3),
    Sketcher.Constraint("Horizontal", 2, 3, 3, 3),
    Sketcher.Constraint("Horizontal", 4, 3, 5, 3),
    Sketcher.Constraint("Horizontal", 7, 3, 8, 3),
    Sketcher.Constraint("Horizontal", 6, 3, 9, 3),
    Sketcher.Constraint("Horizontal", 10, 3, 13, 3),
    Sketcher.Constraint("Horizontal", 11, 3, 14, 3),
    Sketcher.Constraint("Horizontal", 12, 3, 15, 3),
    Sketcher.Constraint("Horizontal", 16, 3, 17, 3),
    Sketcher.Constraint("Horizontal", 17, 3, 18, 3),
    Sketcher.Constraint("Horizontal", 18, 3, 19, 3),
    Sketcher.Constraint("Horizontal", 19, 3, 20, 3),
    Sketcher.Constraint("Horizontal", 20, 3, 21, 3),
    Sketcher.Constraint("Vertical", 5, 3, 6, 3),
    Sketcher.Constraint("Vertical", 6, 3, 7, 3),
    Sketcher.Constraint("Vertical", 4, 3, 8, 3),
    Sketcher.Constraint("Vertical", 8, 3, 9, 3),
    Sketcher.Constraint("Vertical", 9, 3, 10, 3),
    Sketcher.Constraint("Vertical", 10, 3, 11, 3),
    Sketcher.Constraint("Vertical", 11, 3, 12, 3),
    Sketcher.Constraint("Vertical", 7, 3, 13, 3),
    Sketcher.Constraint("Vertical", 13, 3, 14, 3),
    Sketcher.Constraint("Vertical", 14, 3, 15, 3),
    Sketcher.Constraint("Vertical", 12, 3, 16, 3),
    Sketcher.Constraint("Vertical", 0, 3, 17, 3),
    Sketcher.Constraint("Vertical", 1, 3, 18, 3),
    Sketcher.Constraint("Vertical", 2, 3, 19, 3),
    Sketcher.Constraint("Vertical", 3, 3, 20, 3),
    Sketcher.Constraint("Vertical", 15, 3, 21, 3),
    Sketcher.Constraint("Diameter", 0, Q("5.5 mm")),
    Sketcher.Constraint("DistanceX", 0, 3, -1, 1, Q("110 mm")),
    Sketcher.Constraint("DistanceY", -1, 1, 0, 3, Q("10 mm")),
    Sketcher.Constraint("DistanceX", 1, 3, -1, 1, Q("90 mm")),
    Sketcher.Constraint("DistanceX", 2, 3, -1, 1, Q("50 mm")),
    Sketcher.Constraint("DistanceX", 3, 3, -1, 1, Q("30 mm")),
    Sketcher.Constraint("DistanceX", 4, 3, -1, 1, Q("130 mm")),
    Sketcher.Constraint("DistanceY", 4, 3, -1, 1, Q("10 mm")),
    Sketcher.Constraint("DistanceX", 5, 3, -1, 1, Q("10 mm")),
    Sketcher.Constraint("DistanceY", 6, 3, -1, 1, Q("30 mm")),
    Sketcher.Constraint("DistanceY", 7, 3, -1, 1, Q("50 mm")),
    Sketcher.Constraint("DistanceY", 10, 3, -1, 1, Q("130 mm")),
    Sketcher.Constraint("DistanceY", 11, 3, -1, 1, Q("110 mm")),
    Sketcher.Constraint("DistanceY", 12, 3, -1, 1, Q("90 mm")),
    Sketcher.Constraint("DistanceY", 16, 3, -1, 1, Q("150 mm")),
])
doc.recompute()
hole4 = body4.newObject("PartDesign::Hole", "Hole003")
hole4.Profile = sketch19
hole4.ThreadType = "None"
hole4.Diameter = 5.5
hole4.DepthType = "ThroughAll"
hole4.Reversed = True

# Sketch on XY plane
sketch20 = body4.newObject("Sketcher::SketchObject", "Sketch019")
sketch20.AttachmentSupport = (doc.getObject("XY_Plane003"), [""])
sketch20.MapMode = "FlatFace"
sketch20.AttachmentOffset = App.Placement(V(0, 0, 5), App.Rotation())
add_polygon(sketch20, [(-120, -89), (-120, -136), (-101, -117)])  # lines 0-2
add_polygon(sketch20, [(-116, -140), (-86, -140), (-98, -122)])  # lines 3-5
sketch20.addConstraint([
    Sketcher.Constraint("Vertical", 0),
    Sketcher.Constraint("Horizontal", 3),
    Sketcher.Constraint("Parallel", 2, 4),
    Sketcher.Constraint("Parallel", 1, 5),
    Sketcher.Constraint("Angle", 1, Q("45 deg")),
    Sketcher.Constraint("DistanceX", 0, 2, -1, 1, Q("120 mm")),
    Sketcher.Constraint("DistanceY", 3, 2, -1, 1, Q("140 mm")),
    Sketcher.Constraint("DistanceX", 5, 2, 1, 2, Q("15.444701 mm")),
    Sketcher.Constraint("DistanceX", 3, 1, 3, 2, Q("30.455214 mm")),
    Sketcher.Constraint("DistanceY", 0, 2, 0, 1, Q("47.450588 mm")),
    Sketcher.Constraint("DistanceY", 1, 2, -1, 1, Q("117.484231 mm")),
    Sketcher.Constraint("DistanceY", 2, 2, -1, 1, Q("89.013878 mm")),
])
pocket4 = body4.newObject("PartDesign::Pocket", "Pocket003")
pocket4.Profile = sketch20
pocket4.Type = "ThroughAll"

doc.recompute()
